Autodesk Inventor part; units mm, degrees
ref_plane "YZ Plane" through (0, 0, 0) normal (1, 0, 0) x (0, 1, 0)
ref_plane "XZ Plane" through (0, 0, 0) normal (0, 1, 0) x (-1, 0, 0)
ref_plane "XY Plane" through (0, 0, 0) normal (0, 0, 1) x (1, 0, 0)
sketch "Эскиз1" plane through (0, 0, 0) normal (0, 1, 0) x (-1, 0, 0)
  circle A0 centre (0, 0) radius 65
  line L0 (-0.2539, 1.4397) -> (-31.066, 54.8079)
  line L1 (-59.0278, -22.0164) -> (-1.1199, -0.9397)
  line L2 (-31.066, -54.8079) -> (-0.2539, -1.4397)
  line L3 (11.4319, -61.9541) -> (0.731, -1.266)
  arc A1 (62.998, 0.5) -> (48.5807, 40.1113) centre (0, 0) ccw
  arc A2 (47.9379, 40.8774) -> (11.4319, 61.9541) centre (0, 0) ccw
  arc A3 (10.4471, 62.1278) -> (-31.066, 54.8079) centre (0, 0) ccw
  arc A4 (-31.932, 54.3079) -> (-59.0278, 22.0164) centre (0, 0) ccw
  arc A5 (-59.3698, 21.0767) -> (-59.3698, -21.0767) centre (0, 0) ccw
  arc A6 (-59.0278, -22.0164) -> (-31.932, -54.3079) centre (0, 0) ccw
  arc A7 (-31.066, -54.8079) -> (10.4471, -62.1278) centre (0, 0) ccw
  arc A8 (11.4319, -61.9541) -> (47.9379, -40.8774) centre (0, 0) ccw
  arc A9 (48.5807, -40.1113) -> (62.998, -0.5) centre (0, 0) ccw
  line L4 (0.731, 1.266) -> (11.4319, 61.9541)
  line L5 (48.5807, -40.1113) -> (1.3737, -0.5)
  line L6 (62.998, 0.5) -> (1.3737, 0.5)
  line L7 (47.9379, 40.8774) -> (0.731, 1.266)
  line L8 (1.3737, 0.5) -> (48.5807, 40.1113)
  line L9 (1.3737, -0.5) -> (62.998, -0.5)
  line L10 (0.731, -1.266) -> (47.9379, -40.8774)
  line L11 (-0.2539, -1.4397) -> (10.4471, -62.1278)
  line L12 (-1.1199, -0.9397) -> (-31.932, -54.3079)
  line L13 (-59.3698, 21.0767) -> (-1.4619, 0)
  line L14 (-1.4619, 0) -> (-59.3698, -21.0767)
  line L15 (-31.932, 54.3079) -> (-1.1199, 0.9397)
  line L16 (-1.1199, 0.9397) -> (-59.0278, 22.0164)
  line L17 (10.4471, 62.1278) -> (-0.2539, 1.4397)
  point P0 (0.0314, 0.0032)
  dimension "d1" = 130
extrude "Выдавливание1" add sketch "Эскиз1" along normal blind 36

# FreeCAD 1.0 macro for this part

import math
import FreeCAD as App
import Part
import Sketcher
from FreeCAD import Vector
Q = App.Units.Quantity

doc = App.newDocument("Part")
body = doc.addObject("PartDesign::Body", "Body")

sketch1 = body.newObject("Sketcher::SketchObject", "Sketch")
sketch1.AttachmentSupport = (doc.getObject("XZ_Plane"), [""])
sketch1.MapMode = "FlatFace"
sketch1.addGeometry(Part.Circle(Vector(0, 0, 0), Vector(0, 0, 1), 65), False)
sketch1.addGeometry(Part.ArcOfCircle(Part.Circle(Vector(0, 0, 0), Vector(0, 0, 1), 62.999984), math.radians(-59.545291), math.radians(-20.454689)), False)
sketch1.addGeometry(Part.LineSegment(Vector(59.0278, -22.0164, 0), Vector(1.1199, -0.9397, 0)), False)
sketch1.addGeometry(Part.LineSegment(Vector(1.1199, -0.9397, 0), Vector(31.932, -54.3079, 0)), False)
sketch1.addGeometry(Part.ArcOfCircle(Part.Circle(Vector(0, 0, 0), Vector(0, 0, 1), 63.000043), math.radians(-99.545272), math.radians(-60.454737)), False)
sketch1.addGeometry(Part.LineSegment(Vector(31.066, -54.8079, 0), Vector(0.2539, -1.4397, 0)), False)
sketch1.addGeometry(Part.LineSegment(Vector(0.2539, -1.4397, 0), Vector(-10.4471, -62.1278, 0)), False)
sketch1.addGeometry(Part.ArcOfCircle(Part.Circle(Vector(0, 0, 0), Vector(0, 0, 1), 63.000043), math.radians(-139.545252), math.radians(-100.45474)), False)
sketch1.addGeometry(Part.LineSegment(Vector(-11.4319, -61.9541, 0), Vector(-0.731, -1.266, 0)), False)
sketch1.addGeometry(Part.LineSegment(Vector(-0.731, -1.266, 0), Vector(-47.9379, -40.8774, 0)), False)
sketch1.addGeometry(Part.ArcOfCircle(Part.Circle(Vector(0, 0, 0), Vector(0, 0, 1), 62.999984), math.radians(-179.545267), math.radians(-140.454764)), False)
sketch1.addGeometry(Part.LineSegment(Vector(-48.5807, -40.1113, 0), Vector(-1.3737, -0.5, 0)), False)
sketch1.addGeometry(Part.LineSegment(Vector(-1.3737, -0.5, 0), Vector(-62.998, -0.5, 0)), False)
sketch1.addGeometry(Part.ArcOfCircle(Part.Circle(Vector(0, 0, 0), Vector(0, 0, 1), 63.000003), math.radians(-19.545223), math.radians(19.545223)), False)
sketch1.addGeometry(Part.LineSegment(Vector(59.3698, 21.0767, 0), Vector(1.4619, 0, 0)), False)
sketch1.addGeometry(Part.LineSegment(Vector(1.4619, 0, 0), Vector(59.3698, -21.0767, 0)), False)
sketch1.addGeometry(Part.ArcOfCircle(Part.Circle(Vector(0, 0, 0), Vector(0, 0, 1), 63.000043), math.radians(20.454689), math.radians(59.545291)), False)
sketch1.addGeometry(Part.LineSegment(Vector(31.932, 54.3079, 0), Vector(1.1199, 0.9397, 0)), False)
sketch1.addGeometry(Part.LineSegment(Vector(1.1199, 0.9397, 0), Vector(59.0278, 22.0164, 0)), False)
sketch1.addGeometry(Part.LineSegment(Vector(-10.4471, 62.1278, 0), Vector(0.2539, 1.4397, 0)), False)
sketch1.addGeometry(Part.LineSegment(Vector(0.2539, 1.4397, 0), Vector(31.066, 54.8079, 0)), False)
sketch1.addGeometry(Part.ArcOfCircle(Part.Circle(Vector(0, 0, 0), Vector(0, 0, 1), 62.999984), math.radians(60.454737), math.radians(99.545272)), False)
sketch1.addGeometry(Part.ArcOfCircle(Part.Circle(Vector(0, 0, 0), Vector(0, 0, 1), 63.000043), math.radians(140.454764), math.radians(179.545267)), False)
sketch1.addGeometry(Part.LineSegment(Vector(-62.998, 0.5, 0), Vector(-1.3737, 0.5, 0)), False)
sketch1.addGeometry(Part.LineSegment(Vector(-1.3737, 0.5, 0), Vector(-48.5807, 40.1113, 0)), False)
sketch1.addGeometry(Part.ArcOfCircle(Part.Circle(Vector(0, 0, 0), Vector(0, 0, 1), 62.999984), math.radians(100.45474), math.radians(139.545252)), False)
sketch1.addGeometry(Part.LineSegment(Vector(-47.9379, 40.8774, 0), Vector(-0.731, 1.266, 0)), False)
sketch1.addGeometry(Part.LineSegment(Vector(-0.731, 1.266, 0), Vector(-11.4319, 61.9541, 0)), False)
sketch1.addConstraint(Sketcher.Constraint("Coincident", 1, 2, 2, 1))
sketch1.addConstraint(Sketcher.Constraint("Coincident", 2, 2, 3, 1))
sketch1.addConstraint(Sketcher.Constraint("Coincident", 3, 2, 1, 1))
sketch1.addConstraint(Sketcher.Constraint("Coincident", 4, 2, 5, 1))
sketch1.addConstraint(Sketcher.Constraint("Coincident", 5, 2, 6, 1))
sketch1.addConstraint(Sketcher.Constraint("Coincident", 6, 2, 4, 1))
sketch1.addConstraint(Sketcher.Constraint("Coincident", 7, 2, 8, 1))
sketch1.addConstraint(Sketcher.Constraint("Coincident", 8, 2, 9, 1))
sketch1.addConstraint(Sketcher.Constraint("Coincident", 9, 2, 7, 1))
sketch1.addConstraint(Sketcher.Constraint("Coincident", 10, 2, 11, 1))
sketch1.addConstraint(Sketcher.Constraint("Coincident", 11, 2, 12, 1))
sketch1.addConstraint(Sketcher.Constraint("Coincident", 12, 2, 10, 1))
sketch1.addConstraint(Sketcher.Constraint("Coincident", 13, 2, 14, 1))
sketch1.addConstraint(Sketcher.Constraint("Coincident", 14, 2, 15, 1))
sketch1.addConstraint(Sketcher.Constraint("Coincident", 15, 2, 13, 1))
sketch1.addConstraint(Sketcher.Constraint("Coincident", 16, 2, 17, 1))
sketch1.addConstraint(Sketcher.Constraint("Coincident", 17, 2, 18, 1))
sketch1.addConstraint(Sketcher.Constraint("Coincident", 18, 2, 16, 1))
sketch1.addConstraint(Sketcher.Constraint("Coincident", 19, 2, 20, 1))
sketch1.addConstraint(Sketcher.Constraint("Coincident", 20, 2, 21, 1))
sketch1.addConstraint(Sketcher.Constraint("Coincident", 21, 2, 19, 1))
sketch1.addConstraint(Sketcher.Constraint("Coincident", 22, 2, 23, 1))
sketch1.addConstraint(Sketcher.Constraint("Coincident", 23, 2, 24, 1))
sketch1.addConstraint(Sketcher.Constraint("Coincident", 24, 2, 22, 1))
sketch1.addConstraint(Sketcher.Constraint("Coincident", 25, 2, 26, 1))
sketch1.addConstraint(Sketcher.Constraint("Coincident", 26, 2, 27, 1))
sketch1.addConstraint(Sketcher.Constraint("Coincident", 27, 2, 25, 1))
sketch1.addConstraint(Sketcher.Constraint("Horizontal", 12))
sketch1.addConstraint(Sketcher.Constraint("Horizontal", 23))
sketch1.addConstraint(Sketcher.Constraint("Coincident", 0, 3, -1, 1))
sketch1.addConstraint(Sketcher.Constraint("Coincident", 1, 3, -1, 1))
sketch1.addConstraint(Sketcher.Constraint("Coincident", 4, 3, -1, 1))
sketch1.addConstraint(Sketcher.Constraint("Coincident", 7, 3, -1, 1))
sketch1.addConstraint(Sketcher.Constraint("Coincident", 10, 3, -1, 1))
sketch1.addConstraint(Sketcher.Constraint("Coincident", 13, 3, -1, 1))
sketch1.addConstraint(Sketcher.Constraint("Coincident", 16, 3, -1, 1))
sketch1.addConstraint(Sketcher.Constraint("Coincident", 21, 3, -1, 1))
sketch1.addConstraint(Sketcher.Constraint("Coincident", 22, 3, -1, 1))
sketch1.addConstraint(Sketcher.Constraint("Coincident", 25, 3, -1, 1))
sketch1.addConstraint(Sketcher.Constraint("Equal", 1, 4))
sketch1.addConstraint(Sketcher.Constraint("Equal", 4, 7))
sketch1.addConstraint(Sketcher.Constraint("Equal", 7, 10))
sketch1.addConstraint(Sketcher.Constraint("Equal", 10, 13))
sketch1.addConstraint(Sketcher.Constraint("Equal", 13, 16))
sketch1.addConstraint(Sketcher.Constraint("Equal", 16, 21))
sketch1.addConstraint(Sketcher.Constraint("Equal", 21, 22))
sketch1.addConstraint(Sketcher.Constraint("Equal", 22, 25))
sketch1.addConstraint(Sketcher.Constraint("Symmetric", 2, 2, 17, 2, -1))
sketch1.addConstraint(Sketcher.Constraint("Symmetric", 5, 2, 19, 2, -1))
sketch1.addConstraint(Sketcher.Constraint("Symmetric", 11, 2, 23, 2, -1))
sketch1.addConstraint(Sketcher.Constraint("Symmetric", 8, 2, 26, 2, -1))
sketch1.addConstraint(Sketcher.Constraint("PointOnObject", 14, 2, -1))
sketch1.addConstraint(Sketcher.Constraint("Parallel", 3, 5))
sketch1.addConstraint(Sketcher.Constraint("Parallel", 6, 8))
sketch1.addConstraint(Sketcher.Constraint("Parallel", 9, 11))
sketch1.addConstraint(Sketcher.Constraint("Parallel", 2, 15))
sketch1.addConstraint(Sketcher.Constraint("Parallel", 14, 18))
sketch1.addConstraint(Sketcher.Constraint("Parallel", 17, 20))
sketch1.addConstraint(Sketcher.Constraint("Parallel", 24, 26))
sketch1.addConstraint(Sketcher.Constraint("Parallel", 19, 27))
sketch1.addConstraint(Sketcher.Constraint("Vertical", 13, 2, 15, 2))
sketch1.addConstraint(Sketcher.Constraint("Vertical", 3, 2, 16, 2))
sketch1.addConstraint(Sketcher.Constraint("Vertical", 6, 2, 21, 2))
sketch1.addConstraint(Sketcher.Constraint("Vertical", 10, 2, 24, 2))
sketch1.addConstraint(Sketcher.Constraint("Equal", 2, 3))
sketch1.addConstraint(Sketcher.Constraint("Equal", 3, 5))
sketch1.addConstraint(Sketcher.Constraint("Equal", 5, 6))
sketch1.addConstraint(Sketcher.Constraint("Equal", 6, 8))
sketch1.addConstraint(Sketcher.Constraint("Equal", 8, 9))
sketch1.addConstraint(Sketcher.Constraint("Equal", 9, 11))
sketch1.addConstraint(Sketcher.Constraint("Equal", 11, 14))
sketch1.addConstraint(Sketcher.Constraint("Diameter", 0, 130.0))
sketch1.addConstraint(Sketcher.Constraint("Radius", 1, 63.0))
sketch1.addConstraint(Sketcher.Constraint("Angle", 2, Q("160 deg")))
sketch1.addConstraint(Sketcher.Constraint("Angle", 3, Q("-60 deg")))
sketch1.addConstraint(Sketcher.Constraint("Angle", 6, Q("-100 deg")))
sketch1.addConstraint(Sketcher.Constraint("Angle", 9, Q("-140 deg")))
sketch1.addConstraint(Sketcher.Constraint("DistanceY", 12, 2, 22, 2, 1.0))
sketch1.addConstraint(Sketcher.Constraint("DistanceY", 4, 2, 3, 2, 0.5))
pad1 = body.newObject("PartDesign::Pad", "Pad")
pad1.Profile = sketch1
pad1.Length = 36
pad1.Reversed = True

doc.recompute()
